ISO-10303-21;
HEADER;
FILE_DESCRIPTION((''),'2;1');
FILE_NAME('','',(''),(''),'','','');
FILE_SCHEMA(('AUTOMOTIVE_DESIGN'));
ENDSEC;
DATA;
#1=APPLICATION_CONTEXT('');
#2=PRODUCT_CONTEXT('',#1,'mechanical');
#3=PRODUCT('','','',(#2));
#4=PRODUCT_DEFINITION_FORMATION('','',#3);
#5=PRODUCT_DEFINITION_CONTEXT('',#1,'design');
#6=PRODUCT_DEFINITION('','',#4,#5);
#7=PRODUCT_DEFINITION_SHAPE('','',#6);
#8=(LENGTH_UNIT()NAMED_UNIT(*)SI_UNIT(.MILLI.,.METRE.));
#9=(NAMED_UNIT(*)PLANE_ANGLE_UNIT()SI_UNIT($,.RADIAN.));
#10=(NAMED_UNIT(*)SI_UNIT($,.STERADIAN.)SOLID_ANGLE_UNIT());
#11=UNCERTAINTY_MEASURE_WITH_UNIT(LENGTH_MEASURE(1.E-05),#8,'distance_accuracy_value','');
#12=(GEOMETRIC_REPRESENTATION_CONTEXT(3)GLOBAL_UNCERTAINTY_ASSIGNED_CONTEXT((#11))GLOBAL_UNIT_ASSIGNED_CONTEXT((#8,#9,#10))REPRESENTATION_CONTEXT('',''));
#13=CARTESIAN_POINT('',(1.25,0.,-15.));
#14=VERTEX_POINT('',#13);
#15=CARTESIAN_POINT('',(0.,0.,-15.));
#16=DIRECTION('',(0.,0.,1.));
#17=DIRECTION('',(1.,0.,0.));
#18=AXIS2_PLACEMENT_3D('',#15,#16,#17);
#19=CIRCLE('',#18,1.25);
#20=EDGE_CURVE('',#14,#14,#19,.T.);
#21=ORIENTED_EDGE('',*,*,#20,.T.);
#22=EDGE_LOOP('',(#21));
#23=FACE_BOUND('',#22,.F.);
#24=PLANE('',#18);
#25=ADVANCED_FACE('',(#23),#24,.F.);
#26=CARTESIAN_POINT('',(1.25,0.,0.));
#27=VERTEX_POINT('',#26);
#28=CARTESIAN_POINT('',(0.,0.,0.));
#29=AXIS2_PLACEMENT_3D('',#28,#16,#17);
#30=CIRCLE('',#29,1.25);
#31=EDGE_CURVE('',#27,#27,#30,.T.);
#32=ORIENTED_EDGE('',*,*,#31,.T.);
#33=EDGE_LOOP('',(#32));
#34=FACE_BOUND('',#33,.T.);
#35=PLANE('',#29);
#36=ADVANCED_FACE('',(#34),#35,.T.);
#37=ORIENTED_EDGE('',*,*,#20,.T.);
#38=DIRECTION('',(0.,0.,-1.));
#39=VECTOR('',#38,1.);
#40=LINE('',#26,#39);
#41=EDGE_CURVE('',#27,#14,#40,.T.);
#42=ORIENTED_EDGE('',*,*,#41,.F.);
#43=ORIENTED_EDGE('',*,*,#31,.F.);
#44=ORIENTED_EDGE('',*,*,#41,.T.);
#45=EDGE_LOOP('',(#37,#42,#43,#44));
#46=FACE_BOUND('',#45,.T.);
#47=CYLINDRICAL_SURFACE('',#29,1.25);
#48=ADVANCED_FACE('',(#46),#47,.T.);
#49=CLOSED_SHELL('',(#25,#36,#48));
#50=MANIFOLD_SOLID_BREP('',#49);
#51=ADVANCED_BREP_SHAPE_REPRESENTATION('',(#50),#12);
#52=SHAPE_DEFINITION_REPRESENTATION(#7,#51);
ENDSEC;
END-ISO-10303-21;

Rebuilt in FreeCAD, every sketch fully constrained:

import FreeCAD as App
import Part
import Sketcher
from FreeCAD import Vector

doc = App.newDocument("Part")
params = doc.addObject("Spreadsheet::Sheet", "Params")
for row, (alias, value) in enumerate([
    ("sketch1_diameter", "2.5 mm"),
    ("pad1_length", "15 mm"),
], start=1):
    params.set(f"A{row}", alias)
    params.set(f"B{row}", "=" + value)
    params.setAlias(f"B{row}", alias)

body = doc.addObject("PartDesign::Body", "Body")

# Sketch on XY plane
sketch1 = body.newObject("Sketcher::SketchObject", "Sketch")
sketch1.AttachmentSupport = (doc.getObject("XY_Plane"), [""])
sketch1.MapMode = "FlatFace"
sketch1.addGeometry(Part.Circle(Vector(0, 0, 0), Vector(0, 0, 1), 1.25), False)
sketch1.addConstraint([
    Sketcher.Constraint("Coincident", 0, 3, -1, 1),
    Sketcher.Constraint("Diameter", 0, 2.5),
])
sketch1.setExpression("Constraints[1]", "Params.sketch1_diameter")
pad1 = body.newObject("PartDesign::Pad", "Pad")
pad1.Profile = sketch1
pad1.setExpression("Length", "Params.pad1_length")
pad1.Reversed = True

doc.recompute()
